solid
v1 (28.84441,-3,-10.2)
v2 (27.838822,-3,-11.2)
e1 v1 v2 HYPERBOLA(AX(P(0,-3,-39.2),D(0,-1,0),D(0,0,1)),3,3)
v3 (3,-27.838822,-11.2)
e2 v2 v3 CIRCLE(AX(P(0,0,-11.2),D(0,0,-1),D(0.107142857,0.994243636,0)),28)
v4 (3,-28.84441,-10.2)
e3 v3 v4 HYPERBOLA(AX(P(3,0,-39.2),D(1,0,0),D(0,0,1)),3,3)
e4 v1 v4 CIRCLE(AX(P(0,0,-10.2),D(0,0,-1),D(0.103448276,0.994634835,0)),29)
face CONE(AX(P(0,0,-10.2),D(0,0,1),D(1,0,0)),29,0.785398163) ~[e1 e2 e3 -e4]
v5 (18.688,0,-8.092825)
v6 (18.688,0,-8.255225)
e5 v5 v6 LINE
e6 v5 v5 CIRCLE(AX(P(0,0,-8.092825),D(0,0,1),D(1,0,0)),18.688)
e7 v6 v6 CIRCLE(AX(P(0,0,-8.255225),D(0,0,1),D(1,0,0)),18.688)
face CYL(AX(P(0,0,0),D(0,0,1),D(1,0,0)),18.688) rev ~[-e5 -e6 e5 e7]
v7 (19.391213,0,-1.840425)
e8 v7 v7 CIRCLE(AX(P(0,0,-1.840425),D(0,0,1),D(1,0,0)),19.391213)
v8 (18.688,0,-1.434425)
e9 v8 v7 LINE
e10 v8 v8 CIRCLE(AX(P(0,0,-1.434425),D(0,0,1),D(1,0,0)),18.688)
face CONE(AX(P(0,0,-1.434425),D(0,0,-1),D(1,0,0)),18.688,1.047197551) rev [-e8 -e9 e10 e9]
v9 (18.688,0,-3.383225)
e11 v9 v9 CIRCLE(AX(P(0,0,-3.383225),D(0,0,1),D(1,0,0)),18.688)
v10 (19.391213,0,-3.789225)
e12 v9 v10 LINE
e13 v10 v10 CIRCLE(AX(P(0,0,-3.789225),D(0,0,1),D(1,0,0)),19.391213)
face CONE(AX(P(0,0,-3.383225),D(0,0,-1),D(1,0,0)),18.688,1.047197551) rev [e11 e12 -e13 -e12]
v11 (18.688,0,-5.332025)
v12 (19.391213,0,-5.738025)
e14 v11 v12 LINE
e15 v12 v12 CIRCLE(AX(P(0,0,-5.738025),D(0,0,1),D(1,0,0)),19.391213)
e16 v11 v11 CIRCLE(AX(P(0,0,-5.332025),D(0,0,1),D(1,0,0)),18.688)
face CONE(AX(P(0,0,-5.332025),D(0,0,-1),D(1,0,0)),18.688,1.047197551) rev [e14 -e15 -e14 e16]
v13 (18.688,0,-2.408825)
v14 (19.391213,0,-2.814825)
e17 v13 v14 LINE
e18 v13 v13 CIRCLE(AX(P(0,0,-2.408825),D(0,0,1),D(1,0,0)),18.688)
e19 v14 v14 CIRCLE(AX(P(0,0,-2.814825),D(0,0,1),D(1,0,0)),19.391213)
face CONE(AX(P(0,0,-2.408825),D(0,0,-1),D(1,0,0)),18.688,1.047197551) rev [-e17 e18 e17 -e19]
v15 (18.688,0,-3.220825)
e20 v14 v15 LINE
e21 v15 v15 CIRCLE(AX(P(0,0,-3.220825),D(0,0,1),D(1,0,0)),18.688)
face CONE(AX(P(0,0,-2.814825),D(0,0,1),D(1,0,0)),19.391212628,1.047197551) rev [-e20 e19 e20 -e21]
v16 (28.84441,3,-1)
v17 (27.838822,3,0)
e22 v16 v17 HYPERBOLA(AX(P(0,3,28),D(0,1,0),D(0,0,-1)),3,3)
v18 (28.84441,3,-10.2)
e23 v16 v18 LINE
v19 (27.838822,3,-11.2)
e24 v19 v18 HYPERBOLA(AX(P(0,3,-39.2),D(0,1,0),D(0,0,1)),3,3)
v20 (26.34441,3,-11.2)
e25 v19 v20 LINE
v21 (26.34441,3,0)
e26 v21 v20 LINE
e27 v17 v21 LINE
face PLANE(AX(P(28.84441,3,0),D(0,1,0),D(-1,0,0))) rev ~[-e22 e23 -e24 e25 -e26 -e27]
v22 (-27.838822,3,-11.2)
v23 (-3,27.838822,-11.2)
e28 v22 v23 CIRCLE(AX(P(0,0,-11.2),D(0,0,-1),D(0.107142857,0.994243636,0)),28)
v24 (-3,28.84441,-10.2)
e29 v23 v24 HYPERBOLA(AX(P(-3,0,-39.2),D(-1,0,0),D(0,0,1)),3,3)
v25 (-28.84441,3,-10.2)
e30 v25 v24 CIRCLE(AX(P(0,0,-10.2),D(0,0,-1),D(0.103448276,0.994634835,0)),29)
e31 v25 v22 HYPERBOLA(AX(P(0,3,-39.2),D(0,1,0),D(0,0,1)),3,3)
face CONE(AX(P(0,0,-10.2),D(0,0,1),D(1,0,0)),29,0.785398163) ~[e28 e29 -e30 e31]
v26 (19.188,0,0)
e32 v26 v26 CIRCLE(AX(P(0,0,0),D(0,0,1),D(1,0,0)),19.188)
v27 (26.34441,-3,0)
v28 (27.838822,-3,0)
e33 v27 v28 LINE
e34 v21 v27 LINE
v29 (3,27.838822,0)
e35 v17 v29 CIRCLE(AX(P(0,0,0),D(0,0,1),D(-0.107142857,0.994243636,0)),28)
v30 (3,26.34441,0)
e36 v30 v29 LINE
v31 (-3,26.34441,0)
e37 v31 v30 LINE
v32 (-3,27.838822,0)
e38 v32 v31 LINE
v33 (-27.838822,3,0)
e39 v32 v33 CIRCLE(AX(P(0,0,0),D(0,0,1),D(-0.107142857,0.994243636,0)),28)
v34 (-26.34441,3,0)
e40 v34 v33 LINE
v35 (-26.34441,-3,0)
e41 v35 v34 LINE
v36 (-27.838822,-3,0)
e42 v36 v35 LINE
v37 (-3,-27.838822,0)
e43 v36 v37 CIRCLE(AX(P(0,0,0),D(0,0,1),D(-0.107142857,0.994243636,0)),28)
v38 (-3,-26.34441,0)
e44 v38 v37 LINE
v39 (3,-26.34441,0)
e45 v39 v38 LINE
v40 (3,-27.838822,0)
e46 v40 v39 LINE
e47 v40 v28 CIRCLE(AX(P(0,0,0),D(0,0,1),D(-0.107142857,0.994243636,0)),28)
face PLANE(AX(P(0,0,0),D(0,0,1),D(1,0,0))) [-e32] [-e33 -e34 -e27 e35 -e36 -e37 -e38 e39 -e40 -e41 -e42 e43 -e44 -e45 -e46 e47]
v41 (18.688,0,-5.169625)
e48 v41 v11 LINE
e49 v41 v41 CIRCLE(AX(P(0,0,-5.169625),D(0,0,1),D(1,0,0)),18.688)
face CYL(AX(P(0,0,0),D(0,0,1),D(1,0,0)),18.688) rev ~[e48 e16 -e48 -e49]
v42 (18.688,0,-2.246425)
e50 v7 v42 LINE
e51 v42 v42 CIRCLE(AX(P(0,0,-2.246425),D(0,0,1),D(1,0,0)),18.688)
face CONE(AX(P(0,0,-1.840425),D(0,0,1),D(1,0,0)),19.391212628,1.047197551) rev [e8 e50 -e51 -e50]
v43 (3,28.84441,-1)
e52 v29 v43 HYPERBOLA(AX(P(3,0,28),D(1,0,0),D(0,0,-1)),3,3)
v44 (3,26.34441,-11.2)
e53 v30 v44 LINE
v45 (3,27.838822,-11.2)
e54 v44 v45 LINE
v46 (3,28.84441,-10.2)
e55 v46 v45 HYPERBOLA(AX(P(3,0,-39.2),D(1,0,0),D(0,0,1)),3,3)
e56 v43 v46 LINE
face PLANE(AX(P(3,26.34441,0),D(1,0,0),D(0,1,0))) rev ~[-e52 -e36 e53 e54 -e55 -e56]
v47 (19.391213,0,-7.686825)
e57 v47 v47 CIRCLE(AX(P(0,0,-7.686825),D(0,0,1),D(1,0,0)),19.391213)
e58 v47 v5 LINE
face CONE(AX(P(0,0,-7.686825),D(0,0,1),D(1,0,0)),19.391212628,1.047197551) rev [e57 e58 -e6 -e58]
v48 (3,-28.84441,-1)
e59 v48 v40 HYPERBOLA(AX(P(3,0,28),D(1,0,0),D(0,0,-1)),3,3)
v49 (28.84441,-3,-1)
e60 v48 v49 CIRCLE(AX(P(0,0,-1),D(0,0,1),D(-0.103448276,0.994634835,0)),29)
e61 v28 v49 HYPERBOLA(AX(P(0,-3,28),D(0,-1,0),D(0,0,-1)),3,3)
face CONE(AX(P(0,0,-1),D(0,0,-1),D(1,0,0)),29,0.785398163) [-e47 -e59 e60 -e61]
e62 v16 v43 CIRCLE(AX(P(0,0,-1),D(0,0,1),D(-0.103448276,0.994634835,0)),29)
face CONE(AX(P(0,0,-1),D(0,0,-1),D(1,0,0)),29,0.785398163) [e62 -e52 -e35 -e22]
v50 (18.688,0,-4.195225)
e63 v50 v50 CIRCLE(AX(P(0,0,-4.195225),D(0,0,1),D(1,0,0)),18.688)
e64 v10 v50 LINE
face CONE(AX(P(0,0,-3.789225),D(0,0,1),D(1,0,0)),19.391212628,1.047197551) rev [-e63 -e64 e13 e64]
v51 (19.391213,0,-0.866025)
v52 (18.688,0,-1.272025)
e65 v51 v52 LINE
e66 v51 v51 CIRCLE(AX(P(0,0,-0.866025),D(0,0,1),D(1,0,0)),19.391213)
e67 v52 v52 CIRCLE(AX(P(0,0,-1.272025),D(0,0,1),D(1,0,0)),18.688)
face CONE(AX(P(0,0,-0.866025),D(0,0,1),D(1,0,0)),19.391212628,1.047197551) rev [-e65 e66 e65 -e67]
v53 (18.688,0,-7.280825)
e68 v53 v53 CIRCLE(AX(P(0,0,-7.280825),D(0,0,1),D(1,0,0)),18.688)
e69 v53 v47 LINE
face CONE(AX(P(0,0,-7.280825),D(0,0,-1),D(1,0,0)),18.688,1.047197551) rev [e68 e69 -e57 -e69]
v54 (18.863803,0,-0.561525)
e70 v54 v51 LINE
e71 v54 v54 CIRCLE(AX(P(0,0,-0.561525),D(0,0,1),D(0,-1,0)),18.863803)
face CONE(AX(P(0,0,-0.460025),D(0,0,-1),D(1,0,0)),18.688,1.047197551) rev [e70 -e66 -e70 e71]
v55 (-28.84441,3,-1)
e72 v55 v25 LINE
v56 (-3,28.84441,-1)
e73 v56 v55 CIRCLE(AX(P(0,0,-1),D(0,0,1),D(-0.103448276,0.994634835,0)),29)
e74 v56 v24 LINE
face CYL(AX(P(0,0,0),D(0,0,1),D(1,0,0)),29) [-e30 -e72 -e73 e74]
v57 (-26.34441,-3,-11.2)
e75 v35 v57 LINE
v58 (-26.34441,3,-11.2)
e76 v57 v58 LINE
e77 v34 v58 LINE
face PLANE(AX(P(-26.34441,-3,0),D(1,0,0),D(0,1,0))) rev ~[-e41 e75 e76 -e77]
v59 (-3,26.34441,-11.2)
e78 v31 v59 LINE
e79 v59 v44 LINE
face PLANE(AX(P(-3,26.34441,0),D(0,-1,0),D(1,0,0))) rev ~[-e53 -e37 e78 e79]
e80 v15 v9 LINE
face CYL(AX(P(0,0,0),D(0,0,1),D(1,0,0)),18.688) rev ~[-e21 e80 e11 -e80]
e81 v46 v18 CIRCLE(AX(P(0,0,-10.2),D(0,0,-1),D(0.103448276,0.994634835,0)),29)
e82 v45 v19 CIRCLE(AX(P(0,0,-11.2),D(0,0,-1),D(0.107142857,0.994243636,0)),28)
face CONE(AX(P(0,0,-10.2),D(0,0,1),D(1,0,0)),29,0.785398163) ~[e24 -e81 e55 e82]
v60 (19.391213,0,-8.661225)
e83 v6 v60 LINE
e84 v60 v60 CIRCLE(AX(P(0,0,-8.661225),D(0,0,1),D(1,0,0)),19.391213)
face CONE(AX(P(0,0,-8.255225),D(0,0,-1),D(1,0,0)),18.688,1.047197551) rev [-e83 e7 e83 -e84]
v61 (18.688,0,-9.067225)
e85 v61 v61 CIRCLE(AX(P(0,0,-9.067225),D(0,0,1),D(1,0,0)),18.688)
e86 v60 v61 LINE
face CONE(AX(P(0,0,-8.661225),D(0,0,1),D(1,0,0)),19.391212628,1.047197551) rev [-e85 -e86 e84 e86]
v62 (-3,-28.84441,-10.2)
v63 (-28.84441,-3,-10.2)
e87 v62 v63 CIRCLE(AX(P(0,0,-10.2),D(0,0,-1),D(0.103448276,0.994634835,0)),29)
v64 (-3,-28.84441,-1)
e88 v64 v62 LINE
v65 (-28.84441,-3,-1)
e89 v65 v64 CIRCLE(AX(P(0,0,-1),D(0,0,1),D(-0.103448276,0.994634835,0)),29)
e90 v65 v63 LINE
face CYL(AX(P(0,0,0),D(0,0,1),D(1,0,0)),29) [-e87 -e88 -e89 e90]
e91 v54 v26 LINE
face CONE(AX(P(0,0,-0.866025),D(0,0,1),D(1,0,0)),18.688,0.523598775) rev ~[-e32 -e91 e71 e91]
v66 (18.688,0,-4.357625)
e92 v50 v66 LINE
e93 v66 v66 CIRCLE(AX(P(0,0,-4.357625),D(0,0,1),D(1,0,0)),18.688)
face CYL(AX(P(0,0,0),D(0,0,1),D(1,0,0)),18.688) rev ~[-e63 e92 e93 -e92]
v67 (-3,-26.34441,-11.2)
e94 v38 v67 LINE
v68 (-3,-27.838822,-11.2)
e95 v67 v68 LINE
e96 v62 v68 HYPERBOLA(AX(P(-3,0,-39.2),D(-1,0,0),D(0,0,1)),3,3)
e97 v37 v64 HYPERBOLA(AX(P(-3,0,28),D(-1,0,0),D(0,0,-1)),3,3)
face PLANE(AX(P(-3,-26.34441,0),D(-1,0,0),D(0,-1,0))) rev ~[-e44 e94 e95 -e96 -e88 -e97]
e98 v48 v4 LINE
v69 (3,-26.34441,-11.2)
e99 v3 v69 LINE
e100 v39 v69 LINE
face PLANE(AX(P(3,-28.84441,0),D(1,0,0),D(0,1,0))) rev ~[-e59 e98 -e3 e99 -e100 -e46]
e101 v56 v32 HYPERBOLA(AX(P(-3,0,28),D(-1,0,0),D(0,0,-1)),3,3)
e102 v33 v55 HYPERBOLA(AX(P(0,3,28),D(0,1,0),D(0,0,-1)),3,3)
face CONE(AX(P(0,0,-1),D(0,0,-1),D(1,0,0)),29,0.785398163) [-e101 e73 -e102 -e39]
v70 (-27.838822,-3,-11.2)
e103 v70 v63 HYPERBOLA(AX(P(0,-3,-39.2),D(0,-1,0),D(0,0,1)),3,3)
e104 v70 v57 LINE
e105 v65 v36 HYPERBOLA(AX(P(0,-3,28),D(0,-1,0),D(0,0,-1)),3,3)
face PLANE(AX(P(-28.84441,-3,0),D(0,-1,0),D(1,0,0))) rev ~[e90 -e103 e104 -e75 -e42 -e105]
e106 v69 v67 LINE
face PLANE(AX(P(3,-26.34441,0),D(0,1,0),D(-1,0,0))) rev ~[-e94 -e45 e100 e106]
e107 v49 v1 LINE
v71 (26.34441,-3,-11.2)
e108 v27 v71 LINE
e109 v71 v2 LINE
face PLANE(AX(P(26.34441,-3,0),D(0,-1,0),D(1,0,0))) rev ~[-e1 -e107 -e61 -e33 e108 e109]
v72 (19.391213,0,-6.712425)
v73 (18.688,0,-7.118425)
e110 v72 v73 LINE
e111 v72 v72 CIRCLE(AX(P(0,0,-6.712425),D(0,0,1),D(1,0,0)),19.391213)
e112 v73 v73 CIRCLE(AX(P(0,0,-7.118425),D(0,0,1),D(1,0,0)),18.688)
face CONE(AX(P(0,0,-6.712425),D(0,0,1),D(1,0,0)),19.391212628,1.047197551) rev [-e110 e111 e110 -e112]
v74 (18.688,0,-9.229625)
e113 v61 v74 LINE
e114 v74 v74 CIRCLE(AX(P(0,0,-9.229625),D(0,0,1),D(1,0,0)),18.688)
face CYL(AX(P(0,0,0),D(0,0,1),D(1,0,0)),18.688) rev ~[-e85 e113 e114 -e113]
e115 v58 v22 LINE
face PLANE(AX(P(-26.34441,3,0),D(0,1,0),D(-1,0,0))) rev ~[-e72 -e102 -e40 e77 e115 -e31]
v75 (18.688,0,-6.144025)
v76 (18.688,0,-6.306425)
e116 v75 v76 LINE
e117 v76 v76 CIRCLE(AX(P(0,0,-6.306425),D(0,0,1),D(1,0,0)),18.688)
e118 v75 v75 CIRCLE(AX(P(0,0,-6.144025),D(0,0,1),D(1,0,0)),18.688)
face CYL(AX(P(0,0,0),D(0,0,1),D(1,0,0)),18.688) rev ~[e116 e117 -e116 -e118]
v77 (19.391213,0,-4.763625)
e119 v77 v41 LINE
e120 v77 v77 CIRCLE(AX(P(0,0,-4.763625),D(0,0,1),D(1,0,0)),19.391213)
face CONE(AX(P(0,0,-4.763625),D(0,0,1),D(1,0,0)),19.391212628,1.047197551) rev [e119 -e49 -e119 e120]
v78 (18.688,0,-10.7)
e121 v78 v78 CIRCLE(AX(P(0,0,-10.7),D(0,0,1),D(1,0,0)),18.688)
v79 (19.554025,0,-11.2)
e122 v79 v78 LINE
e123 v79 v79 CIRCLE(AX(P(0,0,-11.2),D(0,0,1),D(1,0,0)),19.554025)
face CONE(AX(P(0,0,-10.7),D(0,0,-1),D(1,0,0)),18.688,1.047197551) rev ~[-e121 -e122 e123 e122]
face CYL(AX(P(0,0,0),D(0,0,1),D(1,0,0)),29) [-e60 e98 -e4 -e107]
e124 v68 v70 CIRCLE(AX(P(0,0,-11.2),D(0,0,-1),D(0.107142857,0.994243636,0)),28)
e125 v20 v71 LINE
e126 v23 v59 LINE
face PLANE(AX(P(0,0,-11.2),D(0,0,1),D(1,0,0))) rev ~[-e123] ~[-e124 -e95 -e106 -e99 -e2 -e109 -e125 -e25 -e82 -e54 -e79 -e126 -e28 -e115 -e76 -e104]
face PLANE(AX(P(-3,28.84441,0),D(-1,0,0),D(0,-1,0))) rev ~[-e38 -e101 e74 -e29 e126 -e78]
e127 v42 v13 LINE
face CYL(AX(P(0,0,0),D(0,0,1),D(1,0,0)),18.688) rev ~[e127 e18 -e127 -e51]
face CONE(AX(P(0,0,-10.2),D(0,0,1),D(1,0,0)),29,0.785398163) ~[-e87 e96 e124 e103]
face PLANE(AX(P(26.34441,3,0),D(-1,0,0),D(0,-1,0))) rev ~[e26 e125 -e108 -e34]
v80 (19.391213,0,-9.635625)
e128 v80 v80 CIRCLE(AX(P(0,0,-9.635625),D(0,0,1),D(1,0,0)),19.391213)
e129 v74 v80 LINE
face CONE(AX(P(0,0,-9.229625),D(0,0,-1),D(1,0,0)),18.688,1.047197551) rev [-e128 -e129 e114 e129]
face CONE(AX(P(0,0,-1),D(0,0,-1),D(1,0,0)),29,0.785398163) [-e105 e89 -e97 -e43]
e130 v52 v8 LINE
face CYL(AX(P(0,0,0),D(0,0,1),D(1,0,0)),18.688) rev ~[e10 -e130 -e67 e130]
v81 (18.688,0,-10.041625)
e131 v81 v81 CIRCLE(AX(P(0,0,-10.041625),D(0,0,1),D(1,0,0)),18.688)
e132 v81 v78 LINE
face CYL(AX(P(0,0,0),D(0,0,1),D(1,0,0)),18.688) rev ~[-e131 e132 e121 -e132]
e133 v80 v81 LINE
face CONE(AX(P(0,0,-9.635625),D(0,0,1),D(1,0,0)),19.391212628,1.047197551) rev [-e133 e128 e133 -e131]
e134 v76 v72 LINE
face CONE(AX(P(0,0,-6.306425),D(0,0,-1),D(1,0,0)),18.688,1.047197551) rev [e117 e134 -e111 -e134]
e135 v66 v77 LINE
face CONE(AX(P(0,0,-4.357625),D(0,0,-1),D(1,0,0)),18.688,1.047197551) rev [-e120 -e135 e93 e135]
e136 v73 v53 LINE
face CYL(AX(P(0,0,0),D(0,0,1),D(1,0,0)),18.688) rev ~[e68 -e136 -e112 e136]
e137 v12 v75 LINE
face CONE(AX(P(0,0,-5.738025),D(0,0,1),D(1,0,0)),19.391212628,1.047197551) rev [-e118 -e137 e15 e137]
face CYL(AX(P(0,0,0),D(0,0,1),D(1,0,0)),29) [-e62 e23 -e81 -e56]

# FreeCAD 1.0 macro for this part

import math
import FreeCAD as App
import Part
import Sketcher
from FreeCAD import Vector
Q = App.Units.Quantity


def edges_at(feature, points):
    """Names of the edges that pass closest to the given points."""
    edges = feature.Shape.Edges
    near = lambda p: min(range(len(edges)), key=lambda i: edges[i].distToShape(Part.Vertex(*p))[0])
    return sorted({f"Edge{near(p) + 1}" for p in points})

doc = App.newDocument("Part")
params = doc.addObject("Spreadsheet::Sheet", "Params")
for row, (alias, value) in enumerate([
    ("sketch1_diameter", "58 mm"),
    ("pad1_length", "11.2 mm"),
    ("chamfer_size", "1 mm"),
    ("chamfer2_size", "0.866025 mm"),
    ("chamfer2_size2", "0.5 mm"),
    ("chamfer3_size", "0.866025 mm"),
    ("chamfer3_size2", "0.5 mm"),
    ("sketch3_radius", "29 mm"),
    ("sketch3_width", "6 mm"),
    ("sketch3_height", "2.5 mm"),
    ("groove_angle", "360 deg"),
    ("linearpattern_pitch", "0.9744 mm"),
], start=1):
    params.set(f"A{row}", alias)
    params.set(f"B{row}", "=" + value)
    params.setAlias(f"B{row}", alias)

body = doc.addObject("PartDesign::Body", "Body")

sketch1 = doc.addObject("Sketcher::SketchObject", "Sketch")
body.addObject(sketch1)
sketch1.AttachmentSupport = (doc.XY_Plane, [""])
sketch1.MapMode = "FlatFace"
sketch1.addGeometry(Part.Circle(Vector(0, 0, 0), Vector(0, 0, 1), 29), False)
sketch1.addConstraint(Sketcher.Constraint("Coincident", 0, 3, -1, 1))
sketch1.addConstraint(Sketcher.Constraint("Diameter", 0, 58.0))
sketch1.setExpression("Constraints[1]", "Params.sketch1_diameter")
pad1 = doc.addObject("PartDesign::Pad", "Pad")
body.addObject(pad1)
pad1.Profile = sketch1
pad1.setExpression("Length", "Params.pad1_length")
pad1.Reversed = True
doc.recompute()

chamfer = doc.addObject("PartDesign::Chamfer", "Chamfer")
body.addObject(chamfer)
chamfer.Base = (pad1, edges_at(pad1, [(-29, 0, 0), (-29, 0, -11.2)]))
chamfer.setExpression("Size", "Params.chamfer_size")

sketch2 = doc.addObject("Sketcher::SketchObject", "Sketch001")
body.addObject(sketch2)
sketch2.AttachmentSupport = (doc.XY_Plane, [""])
sketch2.MapMode = "FlatFace"
sketch2.addGeometry(Part.Circle(Vector(0, 0, 0), Vector(0, 0, 1), 18.688), False)
sketch2.addConstraint(Sketcher.Constraint("Coincident", 0, 3, -1, 1))
sketch2.addConstraint(Sketcher.Constraint("Diameter", 0, 37.376))
pocket1 = doc.addObject("PartDesign::Pocket", "Pocket")
body.addObject(pocket1)
pocket1.Profile = sketch2
pocket1.Type = "ThroughAll"
doc.recompute()

chamfer2 = doc.addObject("PartDesign::Chamfer", "Chamfer001")
body.addObject(chamfer2)
chamfer2.Base = (pocket1, edges_at(pocket1, [(-18.688, 0, -11.2)]))
chamfer2.ChamferType = "Two distances"
chamfer2.setExpression("Size", "Params.chamfer2_size")
chamfer2.setExpression("Size2", "Params.chamfer2_size2")
doc.recompute()

chamfer3 = doc.addObject("PartDesign::Chamfer", "Chamfer002")
body.addObject(chamfer3)
chamfer3.Base = (chamfer2, edges_at(chamfer2, [(-18.688, 0, 0)]))
chamfer3.ChamferType = "Two distances"
chamfer3.setExpression("Size", "Params.chamfer3_size")
chamfer3.setExpression("Size2", "Params.chamfer3_size2")

sketch3 = doc.addObject("Sketcher::SketchObject", "Sketch002")
body.addObject(sketch3)
sketch3.AttachmentSupport = (doc.XY_Plane, [""])
sketch3.MapMode = "FlatFace"
sketch3.addGeometry(Part.LineSegment(Vector(-3, 28.84441, 0), Vector(-3, 26.34441, 0)), False)
sketch3.addGeometry(Part.LineSegment(Vector(-3, 26.34441, 0), Vector(3, 26.34441, 0)), False)
sketch3.addGeometry(Part.LineSegment(Vector(3, 26.34441, 0), Vector(3, 28.84441, 0)), False)
sketch3.addGeometry(Part.ArcOfCircle(Part.Circle(Vector(0, 0, 0), Vector(0, 0, 1), 29), math.radians(84.062228), math.radians(95.937772)), False)
sketch3.addConstraint(Sketcher.Constraint("Coincident", 0, 2, 1, 1))
sketch3.addConstraint(Sketcher.Constraint("Coincident", 1, 2, 2, 1))
sketch3.addConstraint(Sketcher.Constraint("Coincident", 2, 2, 3, 1))
sketch3.addConstraint(Sketcher.Constraint("Coincident", 3, 2, 0, 1))
sketch3.addConstraint(Sketcher.Constraint("Vertical", 0))
sketch3.addConstraint(Sketcher.Constraint("Horizontal", 1))
sketch3.addConstraint(Sketcher.Constraint("Vertical", 2))
sketch3.addConstraint(Sketcher.Constraint("Coincident", 3, 3, -1, 1))
sketch3.addConstraint(Sketcher.Constraint("Horizontal", 2, 2, 3, 2))
sketch3.addConstraint(Sketcher.Constraint("Radius", 3, 29.0))
sketch3.addConstraint(Sketcher.Constraint("DistanceX", 1, 1, 1, 2, 6.0))
sketch3.addConstraint(Sketcher.Constraint("DistanceY", 0, 2, 0, 1, 2.5))
sketch3.setExpression("Constraints[9]", "Params.sketch3_radius")
sketch3.setExpression("Constraints[10]", "Params.sketch3_width")
sketch3.setExpression("Constraints[11]", "Params.sketch3_height")
pocket2 = doc.addObject("PartDesign::Pocket", "Pocket001")
body.addObject(pocket2)
pocket2.Profile = sketch3
pocket2.Type = "ThroughAll"
doc.recompute()

polarpattern = doc.addObject("PartDesign::PolarPattern", "PolarPattern")
body.addObject(polarpattern)
polarpattern.Originals = [pocket2]
polarpattern.Axis = (doc.Z_Axis, [""])
polarpattern.Angle = 360
polarpattern.Occurrences = 4
body.Tip = polarpattern

sketch4 = doc.addObject("Sketcher::SketchObject", "Sketch003")
body.addObject(sketch4)
sketch4.AttachmentSupport = (doc.XZ_Plane, [""])
sketch4.MapMode = "FlatFace"
sketch4.addGeometry(Part.LineSegment(Vector(17.876, -1.272025, 0), Vector(17.876, -0.460025, 0)), False)
sketch4.addGeometry(Part.LineSegment(Vector(17.876, -0.460025, 0), Vector(18.688, -0.460025, 0)), False)
sketch4.addGeometry(Part.LineSegment(Vector(18.688, -0.460025, 0), Vector(19.391213, -0.866025, 0)), False)
sketch4.addGeometry(Part.LineSegment(Vector(19.391213, -0.866025, 0), Vector(18.688, -1.272025, 0)), False)
sketch4.addGeometry(Part.LineSegment(Vector(18.688, -1.272025, 0), Vector(17.876, -1.272025, 0)), False)
sketch4.addConstraint(Sketcher.Constraint("Coincident", 0, 2, 1, 1))
sketch4.addConstraint(Sketcher.Constraint("Coincident", 1, 2, 2, 1))
sketch4.addConstraint(Sketcher.Constraint("Coincident", 2, 2, 3, 1))
sketch4.addConstraint(Sketcher.Constraint("Coincident", 3, 2, 4, 1))
sketch4.addConstraint(Sketcher.Constraint("Coincident", 4, 2, 0, 1))
sketch4.addConstraint(Sketcher.Constraint("Vertical", 0))
sketch4.addConstraint(Sketcher.Constraint("Horizontal", 1))
sketch4.addConstraint(Sketcher.Constraint("Horizontal", 4))
sketch4.addConstraint(Sketcher.Constraint("Vertical", 1, 2, 3, 2))
sketch4.addConstraint(Sketcher.Constraint("Equal", 4, 0))
sketch4.addConstraint(Sketcher.Constraint("Equal", 2, 3))
sketch4.addConstraint(Sketcher.Constraint("Angle", 2, Q("-30 deg")))
sketch4.addConstraint(Sketcher.Constraint("DistanceX", 1, 1, 1, 2, 0.812))
sketch4.addConstraint(Sketcher.Constraint("DistanceX", -1, 1, 0, 2, 17.876))
sketch4.addConstraint(Sketcher.Constraint("DistanceY", 0, 2, -1, 1, 0.460025))
groove = doc.addObject("PartDesign::Groove", "Groove")
body.addObject(groove)
groove.Profile = sketch4
groove.ReferenceAxis = (sketch4, ["V_Axis"])
groove.setExpression("Angle", "Params.groove_angle")
doc.recompute()

linearpattern = doc.addObject("PartDesign::LinearPattern", "LinearPattern")
body.addObject(linearpattern)
linearpattern.Originals = [groove]
linearpattern.Direction = (doc.Z_Axis, [""])
linearpattern.Mode = "offset"
linearpattern.setExpression("Offset", "Params.linearpattern_pitch")
linearpattern.Occurrences = 10
linearpattern.Reversed = True
body.Tip = linearpattern

doc.recompute()
